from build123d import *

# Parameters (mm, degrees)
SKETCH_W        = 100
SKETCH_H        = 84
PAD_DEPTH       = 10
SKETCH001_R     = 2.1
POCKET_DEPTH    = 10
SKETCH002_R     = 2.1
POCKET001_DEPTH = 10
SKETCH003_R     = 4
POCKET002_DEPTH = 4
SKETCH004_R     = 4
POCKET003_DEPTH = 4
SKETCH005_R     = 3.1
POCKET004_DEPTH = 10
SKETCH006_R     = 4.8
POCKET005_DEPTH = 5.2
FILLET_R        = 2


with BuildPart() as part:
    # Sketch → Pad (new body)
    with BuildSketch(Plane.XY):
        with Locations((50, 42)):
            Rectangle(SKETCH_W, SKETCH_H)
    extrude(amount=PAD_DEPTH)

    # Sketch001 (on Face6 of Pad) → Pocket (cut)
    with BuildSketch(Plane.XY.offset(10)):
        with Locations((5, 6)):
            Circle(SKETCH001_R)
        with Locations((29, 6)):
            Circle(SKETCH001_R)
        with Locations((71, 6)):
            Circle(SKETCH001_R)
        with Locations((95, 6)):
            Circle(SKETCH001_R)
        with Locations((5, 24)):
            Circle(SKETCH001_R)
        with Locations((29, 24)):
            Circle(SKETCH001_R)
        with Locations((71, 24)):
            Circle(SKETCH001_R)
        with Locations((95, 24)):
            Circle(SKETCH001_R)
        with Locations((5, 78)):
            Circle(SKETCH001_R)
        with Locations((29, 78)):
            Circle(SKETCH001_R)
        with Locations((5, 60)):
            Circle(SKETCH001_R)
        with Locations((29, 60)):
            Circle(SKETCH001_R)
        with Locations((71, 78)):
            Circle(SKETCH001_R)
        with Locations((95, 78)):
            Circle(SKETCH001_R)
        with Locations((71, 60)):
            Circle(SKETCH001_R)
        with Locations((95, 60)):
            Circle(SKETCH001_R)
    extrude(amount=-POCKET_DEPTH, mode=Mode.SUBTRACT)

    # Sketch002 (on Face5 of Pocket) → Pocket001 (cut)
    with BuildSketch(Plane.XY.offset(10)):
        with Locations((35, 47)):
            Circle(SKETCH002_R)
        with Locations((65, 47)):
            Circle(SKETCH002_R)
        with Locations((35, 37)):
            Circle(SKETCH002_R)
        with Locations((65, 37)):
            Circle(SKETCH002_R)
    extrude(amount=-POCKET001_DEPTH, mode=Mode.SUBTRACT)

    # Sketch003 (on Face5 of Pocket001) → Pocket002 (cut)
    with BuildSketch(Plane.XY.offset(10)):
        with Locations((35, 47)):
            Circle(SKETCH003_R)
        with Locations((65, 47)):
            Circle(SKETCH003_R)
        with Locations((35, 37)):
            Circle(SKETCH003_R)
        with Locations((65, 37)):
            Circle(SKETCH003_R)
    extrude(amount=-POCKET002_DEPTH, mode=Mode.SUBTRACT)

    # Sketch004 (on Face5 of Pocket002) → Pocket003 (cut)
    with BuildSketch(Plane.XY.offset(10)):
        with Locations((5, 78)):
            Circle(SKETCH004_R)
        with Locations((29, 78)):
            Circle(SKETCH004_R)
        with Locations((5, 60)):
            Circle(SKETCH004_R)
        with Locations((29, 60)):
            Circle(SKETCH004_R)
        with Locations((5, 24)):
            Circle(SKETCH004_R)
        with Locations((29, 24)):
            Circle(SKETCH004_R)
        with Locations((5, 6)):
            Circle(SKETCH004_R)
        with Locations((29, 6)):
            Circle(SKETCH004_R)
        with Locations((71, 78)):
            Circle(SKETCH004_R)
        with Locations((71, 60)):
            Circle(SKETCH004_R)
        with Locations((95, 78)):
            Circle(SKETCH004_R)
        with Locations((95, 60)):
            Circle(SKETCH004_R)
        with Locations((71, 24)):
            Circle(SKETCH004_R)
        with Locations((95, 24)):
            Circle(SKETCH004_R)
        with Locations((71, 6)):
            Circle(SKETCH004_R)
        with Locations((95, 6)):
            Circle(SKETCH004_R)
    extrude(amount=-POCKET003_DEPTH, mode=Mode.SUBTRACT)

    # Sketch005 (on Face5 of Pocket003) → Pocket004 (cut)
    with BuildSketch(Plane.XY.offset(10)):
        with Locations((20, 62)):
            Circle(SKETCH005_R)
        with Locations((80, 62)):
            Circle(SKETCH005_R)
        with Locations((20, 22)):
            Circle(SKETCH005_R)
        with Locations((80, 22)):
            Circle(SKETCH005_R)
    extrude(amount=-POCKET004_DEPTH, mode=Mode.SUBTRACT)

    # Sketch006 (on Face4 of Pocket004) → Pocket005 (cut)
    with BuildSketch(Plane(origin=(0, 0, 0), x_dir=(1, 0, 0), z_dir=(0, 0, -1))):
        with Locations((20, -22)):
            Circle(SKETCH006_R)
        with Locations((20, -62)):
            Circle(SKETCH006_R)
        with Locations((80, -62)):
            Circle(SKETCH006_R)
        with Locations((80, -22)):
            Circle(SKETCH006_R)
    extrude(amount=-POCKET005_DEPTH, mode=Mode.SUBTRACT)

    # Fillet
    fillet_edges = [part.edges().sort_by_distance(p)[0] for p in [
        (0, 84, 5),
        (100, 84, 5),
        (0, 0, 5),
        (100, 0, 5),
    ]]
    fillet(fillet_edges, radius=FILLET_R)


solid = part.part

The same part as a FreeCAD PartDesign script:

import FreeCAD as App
import Part
import Sketcher

V = App.Vector


def edges_at(feature, points):
    """Names of the edges that pass closest to the given points."""
    edges = feature.Shape.Edges
    near = lambda p: min(range(len(edges)), key=lambda i: edges[i].distToShape(Part.Vertex(*p))[0])
    return sorted({f"Edge{near(p) + 1}" for p in points})

doc = App.newDocument("Part")
body = doc.addObject("PartDesign::Body", "Body")

sketch1 = body.newObject("Sketcher::SketchObject", "Sketch")
sketch1.AttachmentSupport = (doc.getObject("XY_Plane"), [""])
sketch1.MapMode = "FlatFace"
sketch1.addGeometry(Part.LineSegment(V(0, 84, 0), V(0, 0, 0)), False)
sketch1.addGeometry(Part.LineSegment(V(0, 0, 0), V(100, 0, 0)), False)
sketch1.addGeometry(Part.LineSegment(V(100, 0, 0), V(100, 84, 0)), False)
sketch1.addGeometry(Part.LineSegment(V(100, 84, 0), V(0, 84, 0)), False)
sketch1.addConstraint(Sketcher.Constraint("Coincident", 0, 2, 1, 1))
sketch1.addConstraint(Sketcher.Constraint("Coincident", 1, 2, 2, 1))
sketch1.addConstraint(Sketcher.Constraint("Coincident", 2, 2, 3, 1))
sketch1.addConstraint(Sketcher.Constraint("Coincident", 3, 2, 0, 1))
sketch1.addConstraint(Sketcher.Constraint("Vertical", 0))
sketch1.addConstraint(Sketcher.Constraint("Horizontal", 1))
sketch1.addConstraint(Sketcher.Constraint("Vertical", 2))
sketch1.addConstraint(Sketcher.Constraint("Horizontal", 3))
sketch1.addConstraint(Sketcher.Constraint("Coincident", 0, 2, -1, 1))
sketch1.addConstraint(Sketcher.Constraint("DistanceX", 1, 1, 1, 2, 100.0))
sketch1.addConstraint(Sketcher.Constraint("DistanceY", 0, 2, 0, 1, 84.0))
pad1 = body.newObject("PartDesign::Pad", "Pad")
pad1.Profile = sketch1
pad1.Length = 10

sketch2 = body.newObject("Sketcher::SketchObject", "Sketch001")
sketch2.AttachmentSupport = (doc.getObject("XY_Plane"), [""])
sketch2.MapMode = "FlatFace"
sketch2.AttachmentOffset = App.Placement(V(0, 0, 10), App.Rotation())
sketch2.addGeometry(Part.Circle(V(5, 6, 0), V(0, 0, 1), 2.1), False)
sketch2.addGeometry(Part.Circle(V(29, 6, 0), V(0, 0, 1), 2.1), False)
sketch2.addGeometry(Part.Circle(V(71, 6, 0), V(0, 0, 1), 2.1), False)
sketch2.addGeometry(Part.Circle(V(95, 6, 0), V(0, 0, 1), 2.1), False)
sketch2.addGeometry(Part.Circle(V(5, 24, 0), V(0, 0, 1), 2.1), False)
sketch2.addGeometry(Part.Circle(V(29, 24, 0), V(0, 0, 1), 2.1), False)
sketch2.addGeometry(Part.Circle(V(71, 24, 0), V(0, 0, 1), 2.1), False)
sketch2.addGeometry(Part.Circle(V(95, 24, 0), V(0, 0, 1), 2.1), False)
sketch2.addGeometry(Part.Circle(V(5, 78, 0), V(0, 0, 1), 2.1), False)
sketch2.addGeometry(Part.Circle(V(29, 78, 0), V(0, 0, 1), 2.1), False)
sketch2.addGeometry(Part.Circle(V(5, 60, 0), V(0, 0, 1), 2.1), False)
sketch2.addGeometry(Part.Circle(V(29, 60, 0), V(0, 0, 1), 2.1), False)
sketch2.addGeometry(Part.Circle(V(71, 78, 0), V(0, 0, 1), 2.1), False)
sketch2.addGeometry(Part.Circle(V(95, 78, 0), V(0, 0, 1), 2.1), False)
sketch2.addGeometry(Part.Circle(V(71, 60, 0), V(0, 0, 1), 2.1), False)
sketch2.addGeometry(Part.Circle(V(95, 60, 0), V(0, 0, 1), 2.1), False)
sketch2.addConstraint(Sketcher.Constraint("Equal", 0, 1))
sketch2.addConstraint(Sketcher.Constraint("Equal", 1, 2))
sketch2.addConstraint(Sketcher.Constraint("Equal", 2, 3))
sketch2.addConstraint(Sketcher.Constraint("Equal", 3, 4))
sketch2.addConstraint(Sketcher.Constraint("Equal", 4, 5))
sketch2.addConstraint(Sketcher.Constraint("Equal", 5, 6))
sketch2.addConstraint(Sketcher.Constraint("Equal", 6, 7))
sketch2.addConstraint(Sketcher.Constraint("Equal", 7, 8))
sketch2.addConstraint(Sketcher.Constraint("Equal", 8, 9))
sketch2.addConstraint(Sketcher.Constraint("Equal", 9, 10))
sketch2.addConstraint(Sketcher.Constraint("Equal", 10, 11))
sketch2.addConstraint(Sketcher.Constraint("Equal", 11, 12))
sketch2.addConstraint(Sketcher.Constraint("Equal", 12, 13))
sketch2.addConstraint(Sketcher.Constraint("Equal", 13, 14))
sketch2.addConstraint(Sketcher.Constraint("Equal", 14, 15))
sketch2.addConstraint(Sketcher.Constraint("Horizontal", 0, 3, 1, 3))
sketch2.addConstraint(Sketcher.Constraint("Horizontal", 1, 3, 2, 3))
sketch2.addConstraint(Sketcher.Constraint("Horizontal", 2, 3, 3, 3))
sketch2.addConstraint(Sketcher.Constraint("Horizontal", 4, 3, 5, 3))
sketch2.addConstraint(Sketcher.Constraint("Horizontal", 5, 3, 6, 3))
sketch2.addConstraint(Sketcher.Constraint("Horizontal", 6, 3, 7, 3))
sketch2.addConstraint(Sketcher.Constraint("Horizontal", 8, 3, 9, 3))
sketch2.addConstraint(Sketcher.Constraint("Horizontal", 10, 3, 11, 3))
sketch2.addConstraint(Sketcher.Constraint("Horizontal", 9, 3, 12, 3))
sketch2.addConstraint(Sketcher.Constraint("Horizontal", 12, 3, 13, 3))
sketch2.addConstraint(Sketcher.Constraint("Horizontal", 11, 3, 14, 3))
sketch2.addConstraint(Sketcher.Constraint("Horizontal", 14, 3, 15, 3))
sketch2.addConstraint(Sketcher.Constraint("Vertical", 0, 3, 4, 3))
sketch2.addConstraint(Sketcher.Constraint("Vertical", 1, 3, 5, 3))
sketch2.addConstraint(Sketcher.Constraint("Vertical", 2, 3, 6, 3))
sketch2.addConstraint(Sketcher.Constraint("Vertical", 3, 3, 7, 3))
sketch2.addConstraint(Sketcher.Constraint("Vertical", 4, 3, 8, 3))
sketch2.addConstraint(Sketcher.Constraint("Vertical", 5, 3, 9, 3))
sketch2.addConstraint(Sketcher.Constraint("Vertical", 8, 3, 10, 3))
sketch2.addConstraint(Sketcher.Constraint("Vertical", 9, 3, 11, 3))
sketch2.addConstraint(Sketcher.Constraint("Vertical", 6, 3, 12, 3))
sketch2.addConstraint(Sketcher.Constraint("Vertical", 7, 3, 13, 3))
sketch2.addConstraint(Sketcher.Constraint("Vertical", 12, 3, 14, 3))
sketch2.addConstraint(Sketcher.Constraint("Vertical", 13, 3, 15, 3))
sketch2.addConstraint(Sketcher.Constraint("Diameter", 0, 4.2))
sketch2.addConstraint(Sketcher.Constraint("DistanceX", -1, 1, 0, 3, 5.0))
sketch2.addConstraint(Sketcher.Constraint("DistanceY", -1, 1, 0, 3, 6.0))
sketch2.addConstraint(Sketcher.Constraint("DistanceX", -1, 1, 1, 3, 29.0))
sketch2.addConstraint(Sketcher.Constraint("DistanceX", -1, 1, 2, 3, 71.0))
sketch2.addConstraint(Sketcher.Constraint("DistanceX", -1, 1, 3, 3, 95.0))
sketch2.addConstraint(Sketcher.Constraint("DistanceY", -1, 1, 4, 3, 24.0))
sketch2.addConstraint(Sketcher.Constraint("DistanceY", -1, 1, 8, 3, 78.0))
sketch2.addConstraint(Sketcher.Constraint("DistanceY", -1, 1, 10, 3, 60.0))
pocket1 = body.newObject("PartDesign::Pocket", "Pocket")
pocket1.Profile = sketch2
pocket1.Length = 10

sketch3 = body.newObject("Sketcher::SketchObject", "Sketch002")
sketch3.AttachmentSupport = (doc.getObject("XY_Plane"), [""])
sketch3.MapMode = "FlatFace"
sketch3.AttachmentOffset = App.Placement(V(0, 0, 10), App.Rotation())
sketch3.addGeometry(Part.Circle(V(35, 47, 0), V(0, 0, 1), 2.1), False)
sketch3.addGeometry(Part.Circle(V(65, 47, 0), V(0, 0, 1), 2.1), False)
sketch3.addGeometry(Part.Circle(V(35, 37, 0), V(0, 0, 1), 2.1), False)
sketch3.addGeometry(Part.Circle(V(65, 37, 0), V(0, 0, 1), 2.1), False)
sketch3.addConstraint(Sketcher.Constraint("Equal", 0, 1))
sketch3.addConstraint(Sketcher.Constraint("Equal", 1, 2))
sketch3.addConstraint(Sketcher.Constraint("Equal", 2, 3))
sketch3.addConstraint(Sketcher.Constraint("Horizontal", 0, 3, 1, 3))
sketch3.addConstraint(Sketcher.Constraint("Horizontal", 2, 3, 3, 3))
sketch3.addConstraint(Sketcher.Constraint("Vertical", 0, 3, 2, 3))
sketch3.addConstraint(Sketcher.Constraint("Vertical", 1, 3, 3, 3))
sketch3.addConstraint(Sketcher.Constraint("Diameter", 0, 4.2))
sketch3.addConstraint(Sketcher.Constraint("DistanceX", -1, 1, 0, 3, 35.0))
sketch3.addConstraint(Sketcher.Constraint("DistanceY", -1, 1, 0, 3, 47.0))
sketch3.addConstraint(Sketcher.Constraint("DistanceX", -1, 1, 1, 3, 65.0))
sketch3.addConstraint(Sketcher.Constraint("DistanceY", -1, 1, 2, 3, 37.0))
pocket2 = body.newObject("PartDesign::Pocket", "Pocket001")
pocket2.Profile = sketch3
pocket2.Length = 10

sketch4 = body.newObject("Sketcher::SketchObject", "Sketch003")
sketch4.AttachmentSupport = (doc.getObject("XY_Plane"), [""])
sketch4.MapMode = "FlatFace"
sketch4.AttachmentOffset = App.Placement(V(0, 0, 10), App.Rotation())
sketch4.addGeometry(Part.Circle(V(35, 47, 0), V(0, 0, 1), 4), False)
sketch4.addGeometry(Part.Circle(V(65, 47, 0), V(0, 0, 1), 4), False)
sketch4.addGeometry(Part.Circle(V(35, 37, 0), V(0, 0, 1), 4), False)
sketch4.addGeometry(Part.Circle(V(65, 37, 0), V(0, 0, 1), 4), False)
sketch4.addConstraint(Sketcher.Constraint("Equal", 0, 1))
sketch4.addConstraint(Sketcher.Constraint("Equal", 1, 2))
sketch4.addConstraint(Sketcher.Constraint("Equal", 2, 3))
sketch4.addConstraint(Sketcher.Constraint("Horizontal", 0, 3, 1, 3))
sketch4.addConstraint(Sketcher.Constraint("Horizontal", 2, 3, 3, 3))
sketch4.addConstraint(Sketcher.Constraint("Vertical", 0, 3, 2, 3))
sketch4.addConstraint(Sketcher.Constraint("Vertical", 1, 3, 3, 3))
sketch4.addConstraint(Sketcher.Constraint("Diameter", 0, 8.0))
sketch4.addConstraint(Sketcher.Constraint("DistanceX", -1, 1, 0, 3, 35.0))
sketch4.addConstraint(Sketcher.Constraint("DistanceY", -1, 1, 0, 3, 47.0))
sketch4.addConstraint(Sketcher.Constraint("DistanceX", -1, 1, 1, 3, 65.0))
sketch4.addConstraint(Sketcher.Constraint("DistanceY", -1, 1, 2, 3, 37.0))
pocket3 = body.newObject("PartDesign::Pocket", "Pocket002")
pocket3.Profile = sketch4
pocket3.Length = 4

sketch5 = body.newObject("Sketcher::SketchObject", "Sketch004")
sketch5.AttachmentSupport = (doc.getObject("XY_Plane"), [""])
sketch5.MapMode = "FlatFace"
sketch5.AttachmentOffset = App.Placement(V(0, 0, 10), App.Rotation())
sketch5.addGeometry(Part.Circle(V(5, 78, 0), V(0, 0, 1), 4), False)
sketch5.addGeometry(Part.Circle(V(29, 78, 0), V(0, 0, 1), 4), False)
sketch5.addGeometry(Part.Circle(V(5, 60, 0), V(0, 0, 1), 4), False)
sketch5.addGeometry(Part.Circle(V(29, 60, 0), V(0, 0, 1), 4), False)
sketch5.addGeometry(Part.Circle(V(5, 24, 0), V(0, 0, 1), 4), False)
sketch5.addGeometry(Part.Circle(V(29, 24, 0), V(0, 0, 1), 4), False)
sketch5.addGeometry(Part.Circle(V(5, 6, 0), V(0, 0, 1), 4), False)
sketch5.addGeometry(Part.Circle(V(29, 6, 0), V(0, 0, 1), 4), False)
sketch5.addGeometry(Part.Circle(V(71, 78, 0), V(0, 0, 1), 4), False)
sketch5.addGeometry(Part.Circle(V(71, 60, 0), V(0, 0, 1), 4), False)
sketch5.addGeometry(Part.Circle(V(95, 78, 0), V(0, 0, 1), 4), False)
sketch5.addGeometry(Part.Circle(V(95, 60, 0), V(0, 0, 1), 4), False)
sketch5.addGeometry(Part.Circle(V(71, 24, 0), V(0, 0, 1), 4), False)
sketch5.addGeometry(Part.Circle(V(95, 24, 0), V(0, 0, 1), 4), False)
sketch5.addGeometry(Part.Circle(V(71, 6, 0), V(0, 0, 1), 4), False)
sketch5.addGeometry(Part.Circle(V(95, 6, 0), V(0, 0, 1), 4), False)
sketch5.addConstraint(Sketcher.Constraint("Equal", 0, 1))
sketch5.addConstraint(Sketcher.Constraint("Equal", 1, 2))
sketch5.addConstraint(Sketcher.Constraint("Equal", 2, 3))
sketch5.addConstraint(Sketcher.Constraint("Equal", 3, 4))
sketch5.addConstraint(Sketcher.Constraint("Equal", 4, 5))
sketch5.addConstraint(Sketcher.Constraint("Equal", 5, 6))
sketch5.addConstraint(Sketcher.Constraint("Equal", 6, 7))
sketch5.addConstraint(Sketcher.Constraint("Equal", 7, 8))
sketch5.addConstraint(Sketcher.Constraint("Equal", 8, 9))
sketch5.addConstraint(Sketcher.Constraint("Equal", 9, 10))
sketch5.addConstraint(Sketcher.Constraint("Equal", 10, 11))
sketch5.addConstraint(Sketcher.Constraint("Equal", 11, 12))
sketch5.addConstraint(Sketcher.Constraint("Equal", 12, 13))
sketch5.addConstraint(Sketcher.Constraint("Equal", 13, 14))
sketch5.addConstraint(Sketcher.Constraint("Equal", 14, 15))
sketch5.addConstraint(Sketcher.Constraint("Horizontal", 0, 3, 1, 3))
sketch5.addConstraint(Sketcher.Constraint("Horizontal", 2, 3, 3, 3))
sketch5.addConstraint(Sketcher.Constraint("Horizontal", 4, 3, 5, 3))
sketch5.addConstraint(Sketcher.Constraint("Horizontal", 6, 3, 7, 3))
sketch5.addConstraint(Sketcher.Constraint("Horizontal", 1, 3, 8, 3))
sketch5.addConstraint(Sketcher.Constraint("Horizontal", 3, 3, 9, 3))
sketch5.addConstraint(Sketcher.Constraint("Horizontal", 8, 3, 10, 3))
sketch5.addConstraint(Sketcher.Constraint("Horizontal", 9, 3, 11, 3))
sketch5.addConstraint(Sketcher.Constraint("Horizontal", 5, 3, 12, 3))
sketch5.addConstraint(Sketcher.Constraint("Horizontal", 12, 3, 13, 3))
sketch5.addConstraint(Sketcher.Constraint("Horizontal", 7, 3, 14, 3))
sketch5.addConstraint(Sketcher.Constraint("Horizontal", 14, 3, 15, 3))
sketch5.addConstraint(Sketcher.Constraint("Vertical", 0, 3, 2, 3))
sketch5.addConstraint(Sketcher.Constraint("Vertical", 1, 3, 3, 3))
sketch5.addConstraint(Sketcher.Constraint("Vertical", 2, 3, 4, 3))
sketch5.addConstraint(Sketcher.Constraint("Vertical", 3, 3, 5, 3))
sketch5.addConstraint(Sketcher.Constraint("Vertical", 4, 3, 6, 3))
sketch5.addConstraint(Sketcher.Constraint("Vertical", 5, 3, 7, 3))
sketch5.addConstraint(Sketcher.Constraint("Vertical", 8, 3, 9, 3))
sketch5.addConstraint(Sketcher.Constraint("Vertical", 10, 3, 11, 3))
sketch5.addConstraint(Sketcher.Constraint("Vertical", 9, 3, 12, 3))
sketch5.addConstraint(Sketcher.Constraint("Vertical", 11, 3, 13, 3))
sketch5.addConstraint(Sketcher.Constraint("Vertical", 12, 3, 14, 3))
sketch5.addConstraint(Sketcher.Constraint("Vertical", 13, 3, 15, 3))
sketch5.addConstraint(Sketcher.Constraint("Diameter", 0, 8.0))
sketch5.addConstraint(Sketcher.Constraint("DistanceX", -1, 1, 0, 3, 5.0))
sketch5.addConstraint(Sketcher.Constraint("DistanceY", -1, 1, 0, 3, 78.0))
sketch5.addConstraint(Sketcher.Constraint("DistanceX", -1, 1, 1, 3, 29.0))
sketch5.addConstraint(Sketcher.Constraint("DistanceY", -1, 1, 2, 3, 60.0))
sketch5.addConstraint(Sketcher.Constraint("DistanceY", -1, 1, 4, 3, 24.0))
sketch5.addConstraint(Sketcher.Constraint("DistanceY", -1, 1, 6, 3, 6.0))
sketch5.addConstraint(Sketcher.Constraint("DistanceX", -1, 1, 8, 3, 71.0))
sketch5.addConstraint(Sketcher.Constraint("DistanceX", -1, 1, 10, 3, 95.0))
pocket4 = body.newObject("PartDesign::Pocket", "Pocket003")
pocket4.Profile = sketch5
pocket4.Length = 4

sketch6 = body.newObject("Sketcher::SketchObject", "Sketch005")
sketch6.AttachmentSupport = (doc.getObject("XY_Plane"), [""])
sketch6.MapMode = "FlatFace"
sketch6.AttachmentOffset = App.Placement(V(0, 0, 10), App.Rotation())
sketch6.addGeometry(Part.Circle(V(20, 62, 0), V(0, 0, 1), 3.1), False)
sketch6.addGeometry(Part.Circle(V(80, 62, 0), V(0, 0, 1), 3.1), False)
sketch6.addGeometry(Part.Circle(V(20, 22, 0), V(0, 0, 1), 3.1), False)
sketch6.addGeometry(Part.Circle(V(80, 22, 0), V(0, 0, 1), 3.1), False)
sketch6.addConstraint(Sketcher.Constraint("Equal", 0, 1))
sketch6.addConstraint(Sketcher.Constraint("Equal", 1, 2))
sketch6.addConstraint(Sketcher.Constraint("Equal", 2, 3))
sketch6.addConstraint(Sketcher.Constraint("Horizontal", 0, 3, 1, 3))
sketch6.addConstraint(Sketcher.Constraint("Horizontal", 2, 3, 3, 3))
sketch6.addConstraint(Sketcher.Constraint("Vertical", 0, 3, 2, 3))
sketch6.addConstraint(Sketcher.Constraint("Vertical", 1, 3, 3, 3))
sketch6.addConstraint(Sketcher.Constraint("Diameter", 0, 6.2))
sketch6.addConstraint(Sketcher.Constraint("DistanceX", -1, 1, 0, 3, 20.0))
sketch6.addConstraint(Sketcher.Constraint("DistanceY", -1, 1, 0, 3, 62.0))
sketch6.addConstraint(Sketcher.Constraint("DistanceX", -1, 1, 1, 3, 80.0))
sketch6.addConstraint(Sketcher.Constraint("DistanceY", -1, 1, 2, 3, 22.0))
pocket5 = body.newObject("PartDesign::Pocket", "Pocket004")
pocket5.Profile = sketch6
pocket5.Length = 10

sketch7 = body.newObject("Sketcher::SketchObject", "Sketch006")
sketch7.AttachmentSupport = (doc.getObject("XY_Plane"), [""])
sketch7.MapMode = "FlatFace"
sketch7.addGeometry(Part.Circle(V(20, 22, 0), V(0, 0, 1), 4.8), False)
sketch7.addGeometry(Part.Circle(V(20, 62, 0), V(0, 0, 1), 4.8), False)
sketch7.addGeometry(Part.Circle(V(80, 62, 0), V(0, 0, 1), 4.8), False)
sketch7.addGeometry(Part.Circle(V(80, 22, 0), V(0, 0, 1), 4.8), False)
sketch7.addConstraint(Sketcher.Constraint("Equal", 0, 1))
sketch7.addConstraint(Sketcher.Constraint("Equal", 1, 2))
sketch7.addConstraint(Sketcher.Constraint("Equal", 2, 3))
sketch7.addConstraint(Sketcher.Constraint("Horizontal", 1, 3, 2, 3))
sketch7.addConstraint(Sketcher.Constraint("Horizontal", 0, 3, 3, 3))
sketch7.addConstraint(Sketcher.Constraint("Vertical", 0, 3, 1, 3))
sketch7.addConstraint(Sketcher.Constraint("Vertical", 2, 3, 3, 3))
sketch7.addConstraint(Sketcher.Constraint("Diameter", 0, 9.6))
sketch7.addConstraint(Sketcher.Constraint("DistanceX", -1, 1, 0, 3, 20.0))
sketch7.addConstraint(Sketcher.Constraint("DistanceY", -1, 1, 0, 3, 22.0))
sketch7.addConstraint(Sketcher.Constraint("DistanceY", -1, 1, 1, 3, 62.0))
sketch7.addConstraint(Sketcher.Constraint("DistanceX", -1, 1, 2, 3, 80.0))
pocket6 = body.newObject("PartDesign::Pocket", "Pocket005")
pocket6.Profile = sketch7
pocket6.Length = 5.2
pocket6.Reversed = True
doc.recompute()

fillet = body.newObject("PartDesign::Fillet", "Fillet")
fillet.Base = (pocket6, edges_at(pocket6, [
    (0, 84, 5),
    (100, 84, 5),
    (0, 0, 5),
    (100, 0, 5),
]))
fillet.Radius = 2

doc.recompute()
